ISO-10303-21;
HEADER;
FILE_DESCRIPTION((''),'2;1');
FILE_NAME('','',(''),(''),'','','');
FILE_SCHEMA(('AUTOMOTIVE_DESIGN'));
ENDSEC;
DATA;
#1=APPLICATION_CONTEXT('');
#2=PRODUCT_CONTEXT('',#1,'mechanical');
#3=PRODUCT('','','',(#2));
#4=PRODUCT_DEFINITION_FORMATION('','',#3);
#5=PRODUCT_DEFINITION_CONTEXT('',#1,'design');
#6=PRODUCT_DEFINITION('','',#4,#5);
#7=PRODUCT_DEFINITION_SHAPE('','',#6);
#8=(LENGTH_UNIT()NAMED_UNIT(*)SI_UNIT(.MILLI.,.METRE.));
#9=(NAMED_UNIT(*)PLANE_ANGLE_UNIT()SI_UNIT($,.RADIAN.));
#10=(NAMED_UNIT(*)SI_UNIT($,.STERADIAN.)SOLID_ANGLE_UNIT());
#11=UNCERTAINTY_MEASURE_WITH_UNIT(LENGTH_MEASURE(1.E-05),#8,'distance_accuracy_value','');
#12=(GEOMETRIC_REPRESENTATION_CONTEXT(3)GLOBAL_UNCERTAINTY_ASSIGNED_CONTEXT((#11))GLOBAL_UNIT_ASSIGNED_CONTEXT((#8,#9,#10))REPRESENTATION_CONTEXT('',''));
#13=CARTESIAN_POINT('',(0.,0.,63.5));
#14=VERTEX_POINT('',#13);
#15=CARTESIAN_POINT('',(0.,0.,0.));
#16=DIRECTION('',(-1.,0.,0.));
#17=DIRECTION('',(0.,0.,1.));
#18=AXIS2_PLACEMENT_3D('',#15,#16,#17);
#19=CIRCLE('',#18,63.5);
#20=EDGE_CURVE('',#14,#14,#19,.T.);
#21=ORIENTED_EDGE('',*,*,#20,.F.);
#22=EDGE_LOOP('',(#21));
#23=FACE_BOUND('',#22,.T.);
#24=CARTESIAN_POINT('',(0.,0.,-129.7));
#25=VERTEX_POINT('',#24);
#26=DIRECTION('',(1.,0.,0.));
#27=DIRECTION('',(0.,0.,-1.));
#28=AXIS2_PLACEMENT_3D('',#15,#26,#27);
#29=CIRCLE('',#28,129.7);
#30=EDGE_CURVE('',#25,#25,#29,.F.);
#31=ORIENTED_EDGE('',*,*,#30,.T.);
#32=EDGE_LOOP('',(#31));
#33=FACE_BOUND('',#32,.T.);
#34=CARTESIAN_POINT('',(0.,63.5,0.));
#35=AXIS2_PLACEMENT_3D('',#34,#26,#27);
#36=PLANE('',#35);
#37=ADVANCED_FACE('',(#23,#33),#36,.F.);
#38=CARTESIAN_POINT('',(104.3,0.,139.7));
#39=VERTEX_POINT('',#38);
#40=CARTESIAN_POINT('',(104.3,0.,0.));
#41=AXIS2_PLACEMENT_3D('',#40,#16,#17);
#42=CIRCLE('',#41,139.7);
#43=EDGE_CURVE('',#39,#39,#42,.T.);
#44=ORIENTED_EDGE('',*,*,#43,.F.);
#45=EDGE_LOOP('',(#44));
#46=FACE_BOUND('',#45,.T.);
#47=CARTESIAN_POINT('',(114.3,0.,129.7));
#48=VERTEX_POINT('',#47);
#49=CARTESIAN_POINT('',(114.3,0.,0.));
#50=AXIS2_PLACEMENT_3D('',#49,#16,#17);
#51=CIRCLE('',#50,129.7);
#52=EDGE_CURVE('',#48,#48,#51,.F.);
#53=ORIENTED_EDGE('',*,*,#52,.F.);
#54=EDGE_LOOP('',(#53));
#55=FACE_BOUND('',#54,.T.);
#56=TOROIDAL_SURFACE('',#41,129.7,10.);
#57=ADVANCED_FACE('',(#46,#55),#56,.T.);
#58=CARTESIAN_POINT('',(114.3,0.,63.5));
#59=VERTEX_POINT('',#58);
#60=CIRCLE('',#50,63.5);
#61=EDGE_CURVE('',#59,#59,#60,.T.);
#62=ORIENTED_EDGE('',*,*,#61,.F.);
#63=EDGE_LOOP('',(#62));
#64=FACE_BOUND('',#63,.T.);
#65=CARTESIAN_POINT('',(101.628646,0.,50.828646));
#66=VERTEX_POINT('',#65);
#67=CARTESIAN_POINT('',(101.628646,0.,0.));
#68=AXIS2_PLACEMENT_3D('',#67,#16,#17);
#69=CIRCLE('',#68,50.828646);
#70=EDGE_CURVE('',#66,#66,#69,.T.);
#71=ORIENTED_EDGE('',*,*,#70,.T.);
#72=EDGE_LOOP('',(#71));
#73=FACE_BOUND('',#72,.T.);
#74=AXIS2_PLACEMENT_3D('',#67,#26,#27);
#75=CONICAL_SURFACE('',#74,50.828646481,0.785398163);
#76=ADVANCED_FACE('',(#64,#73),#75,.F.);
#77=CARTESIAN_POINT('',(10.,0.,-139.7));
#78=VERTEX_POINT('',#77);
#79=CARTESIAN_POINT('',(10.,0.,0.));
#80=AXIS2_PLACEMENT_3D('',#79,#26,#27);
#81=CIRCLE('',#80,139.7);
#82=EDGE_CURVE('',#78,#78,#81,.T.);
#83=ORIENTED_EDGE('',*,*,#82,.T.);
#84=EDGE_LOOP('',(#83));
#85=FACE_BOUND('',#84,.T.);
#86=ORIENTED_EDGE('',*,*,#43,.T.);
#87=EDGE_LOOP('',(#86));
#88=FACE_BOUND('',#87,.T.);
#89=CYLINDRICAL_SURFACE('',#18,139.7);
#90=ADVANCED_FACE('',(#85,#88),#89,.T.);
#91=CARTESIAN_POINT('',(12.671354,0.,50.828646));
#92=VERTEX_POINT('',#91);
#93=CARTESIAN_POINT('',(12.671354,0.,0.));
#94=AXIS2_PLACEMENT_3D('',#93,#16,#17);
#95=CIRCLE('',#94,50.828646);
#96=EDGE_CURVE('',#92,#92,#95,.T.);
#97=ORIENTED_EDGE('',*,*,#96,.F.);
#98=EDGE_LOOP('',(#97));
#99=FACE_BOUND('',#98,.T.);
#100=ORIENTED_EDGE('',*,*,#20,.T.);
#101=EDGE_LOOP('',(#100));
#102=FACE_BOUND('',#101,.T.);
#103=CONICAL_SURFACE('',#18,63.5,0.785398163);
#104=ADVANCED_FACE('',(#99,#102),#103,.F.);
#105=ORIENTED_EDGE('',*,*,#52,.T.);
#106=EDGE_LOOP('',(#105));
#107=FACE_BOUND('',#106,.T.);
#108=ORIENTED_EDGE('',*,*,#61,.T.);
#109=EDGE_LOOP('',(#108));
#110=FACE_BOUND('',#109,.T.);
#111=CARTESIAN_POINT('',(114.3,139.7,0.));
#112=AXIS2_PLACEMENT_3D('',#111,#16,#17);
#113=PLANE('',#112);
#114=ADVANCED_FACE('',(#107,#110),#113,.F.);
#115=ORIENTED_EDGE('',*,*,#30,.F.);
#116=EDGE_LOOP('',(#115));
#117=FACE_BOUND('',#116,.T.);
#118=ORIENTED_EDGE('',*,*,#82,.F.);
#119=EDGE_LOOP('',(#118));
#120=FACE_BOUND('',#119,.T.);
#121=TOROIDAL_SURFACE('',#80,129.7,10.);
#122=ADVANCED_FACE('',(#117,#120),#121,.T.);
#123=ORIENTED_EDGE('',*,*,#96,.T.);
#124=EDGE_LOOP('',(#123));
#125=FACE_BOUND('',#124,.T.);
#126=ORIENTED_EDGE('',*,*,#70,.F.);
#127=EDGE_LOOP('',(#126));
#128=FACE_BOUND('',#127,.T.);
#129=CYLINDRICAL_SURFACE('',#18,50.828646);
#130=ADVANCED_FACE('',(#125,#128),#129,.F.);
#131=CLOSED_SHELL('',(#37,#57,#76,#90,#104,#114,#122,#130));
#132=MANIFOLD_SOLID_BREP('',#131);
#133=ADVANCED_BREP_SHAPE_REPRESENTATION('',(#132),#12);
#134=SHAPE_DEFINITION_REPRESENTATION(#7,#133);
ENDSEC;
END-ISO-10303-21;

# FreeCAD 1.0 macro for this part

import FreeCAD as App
import Part
import Sketcher
from FreeCAD import Vector
Q = App.Units.Quantity


def edges_at(feature, points):
    """Names of the edges that pass closest to the given points."""
    edges = feature.Shape.Edges
    near = lambda p: min(range(len(edges)), key=lambda i: edges[i].distToShape(Part.Vertex(*p))[0])
    return sorted({f"Edge{near(p) + 1}" for p in points})

doc = App.newDocument("Part")
body = doc.addObject("PartDesign::Body", "Body")

# Sketch on XY plane
sketch1 = body.newObject("Sketcher::SketchObject", "Sketch")
sketch1.AttachmentSupport = (doc.getObject("XY_Plane"), [""])
sketch1.MapMode = "FlatFace"
sketch1.addGeometry([
    Part.LineSegment(Vector(13, 51, 0), Vector(102, 51, 0)),  # 0
    Part.LineSegment(Vector(102, 51, 0), Vector(114, 64, 0)),  # 1
    Part.LineSegment(Vector(114, 64, 0), Vector(114, 140, 0)),  # 2
    Part.LineSegment(Vector(114, 140, 0), Vector(0, 140, 0)),  # 3
    Part.LineSegment(Vector(0, 140, 0), Vector(0, 64, 0)),  # 4
    Part.LineSegment(Vector(0, 64, 0), Vector(13, 51, 0)),  # 5
], False)
sketch1.addConstraint([
    Sketcher.Constraint("Coincident", 0, 2, 1, 1),
    Sketcher.Constraint("Coincident", 1, 2, 2, 1),
    Sketcher.Constraint("Coincident", 2, 2, 3, 1),
    Sketcher.Constraint("Coincident", 3, 2, 4, 1),
    Sketcher.Constraint("Coincident", 4, 2, 5, 1),
    Sketcher.Constraint("Coincident", 5, 2, 0, 1),
    Sketcher.Constraint("Horizontal", 0),
    Sketcher.Constraint("Vertical", 2),
    Sketcher.Constraint("Horizontal", 3),
    Sketcher.Constraint("Vertical", 4),
    Sketcher.Constraint("PointOnObject", 3, 2, -2),
    Sketcher.Constraint("Perpendicular", 1, 5),
    Sketcher.Constraint("Horizontal", 1, 2, 4, 2),
    Sketcher.Constraint("Equal", 1, 5),
    Sketcher.Constraint("DistanceY", 2, 1, 2, 2, Q("3 in")),
    Sketcher.Constraint("DistanceX", 3, 2, 3, 1, Q("4.5 in")),
    Sketcher.Constraint("DistanceY", -1, 1, 1, 2, Q("2.5 in")),
    Sketcher.Constraint("Distance", 1, 17.92),
])
revolution = body.newObject("PartDesign::Revolution", "Revolution")
revolution.Profile = sketch1
revolution.ReferenceAxis = (sketch1, ["H_Axis"])
revolution.Angle = 360
doc.recompute()

fillet = body.newObject("PartDesign::Fillet", "Fillet")
fillet.Base = (revolution, edges_at(revolution, [(0, 0, -139.7), (114.3, 0, -139.7)]))
fillet.Radius = 10

doc.recompute()
